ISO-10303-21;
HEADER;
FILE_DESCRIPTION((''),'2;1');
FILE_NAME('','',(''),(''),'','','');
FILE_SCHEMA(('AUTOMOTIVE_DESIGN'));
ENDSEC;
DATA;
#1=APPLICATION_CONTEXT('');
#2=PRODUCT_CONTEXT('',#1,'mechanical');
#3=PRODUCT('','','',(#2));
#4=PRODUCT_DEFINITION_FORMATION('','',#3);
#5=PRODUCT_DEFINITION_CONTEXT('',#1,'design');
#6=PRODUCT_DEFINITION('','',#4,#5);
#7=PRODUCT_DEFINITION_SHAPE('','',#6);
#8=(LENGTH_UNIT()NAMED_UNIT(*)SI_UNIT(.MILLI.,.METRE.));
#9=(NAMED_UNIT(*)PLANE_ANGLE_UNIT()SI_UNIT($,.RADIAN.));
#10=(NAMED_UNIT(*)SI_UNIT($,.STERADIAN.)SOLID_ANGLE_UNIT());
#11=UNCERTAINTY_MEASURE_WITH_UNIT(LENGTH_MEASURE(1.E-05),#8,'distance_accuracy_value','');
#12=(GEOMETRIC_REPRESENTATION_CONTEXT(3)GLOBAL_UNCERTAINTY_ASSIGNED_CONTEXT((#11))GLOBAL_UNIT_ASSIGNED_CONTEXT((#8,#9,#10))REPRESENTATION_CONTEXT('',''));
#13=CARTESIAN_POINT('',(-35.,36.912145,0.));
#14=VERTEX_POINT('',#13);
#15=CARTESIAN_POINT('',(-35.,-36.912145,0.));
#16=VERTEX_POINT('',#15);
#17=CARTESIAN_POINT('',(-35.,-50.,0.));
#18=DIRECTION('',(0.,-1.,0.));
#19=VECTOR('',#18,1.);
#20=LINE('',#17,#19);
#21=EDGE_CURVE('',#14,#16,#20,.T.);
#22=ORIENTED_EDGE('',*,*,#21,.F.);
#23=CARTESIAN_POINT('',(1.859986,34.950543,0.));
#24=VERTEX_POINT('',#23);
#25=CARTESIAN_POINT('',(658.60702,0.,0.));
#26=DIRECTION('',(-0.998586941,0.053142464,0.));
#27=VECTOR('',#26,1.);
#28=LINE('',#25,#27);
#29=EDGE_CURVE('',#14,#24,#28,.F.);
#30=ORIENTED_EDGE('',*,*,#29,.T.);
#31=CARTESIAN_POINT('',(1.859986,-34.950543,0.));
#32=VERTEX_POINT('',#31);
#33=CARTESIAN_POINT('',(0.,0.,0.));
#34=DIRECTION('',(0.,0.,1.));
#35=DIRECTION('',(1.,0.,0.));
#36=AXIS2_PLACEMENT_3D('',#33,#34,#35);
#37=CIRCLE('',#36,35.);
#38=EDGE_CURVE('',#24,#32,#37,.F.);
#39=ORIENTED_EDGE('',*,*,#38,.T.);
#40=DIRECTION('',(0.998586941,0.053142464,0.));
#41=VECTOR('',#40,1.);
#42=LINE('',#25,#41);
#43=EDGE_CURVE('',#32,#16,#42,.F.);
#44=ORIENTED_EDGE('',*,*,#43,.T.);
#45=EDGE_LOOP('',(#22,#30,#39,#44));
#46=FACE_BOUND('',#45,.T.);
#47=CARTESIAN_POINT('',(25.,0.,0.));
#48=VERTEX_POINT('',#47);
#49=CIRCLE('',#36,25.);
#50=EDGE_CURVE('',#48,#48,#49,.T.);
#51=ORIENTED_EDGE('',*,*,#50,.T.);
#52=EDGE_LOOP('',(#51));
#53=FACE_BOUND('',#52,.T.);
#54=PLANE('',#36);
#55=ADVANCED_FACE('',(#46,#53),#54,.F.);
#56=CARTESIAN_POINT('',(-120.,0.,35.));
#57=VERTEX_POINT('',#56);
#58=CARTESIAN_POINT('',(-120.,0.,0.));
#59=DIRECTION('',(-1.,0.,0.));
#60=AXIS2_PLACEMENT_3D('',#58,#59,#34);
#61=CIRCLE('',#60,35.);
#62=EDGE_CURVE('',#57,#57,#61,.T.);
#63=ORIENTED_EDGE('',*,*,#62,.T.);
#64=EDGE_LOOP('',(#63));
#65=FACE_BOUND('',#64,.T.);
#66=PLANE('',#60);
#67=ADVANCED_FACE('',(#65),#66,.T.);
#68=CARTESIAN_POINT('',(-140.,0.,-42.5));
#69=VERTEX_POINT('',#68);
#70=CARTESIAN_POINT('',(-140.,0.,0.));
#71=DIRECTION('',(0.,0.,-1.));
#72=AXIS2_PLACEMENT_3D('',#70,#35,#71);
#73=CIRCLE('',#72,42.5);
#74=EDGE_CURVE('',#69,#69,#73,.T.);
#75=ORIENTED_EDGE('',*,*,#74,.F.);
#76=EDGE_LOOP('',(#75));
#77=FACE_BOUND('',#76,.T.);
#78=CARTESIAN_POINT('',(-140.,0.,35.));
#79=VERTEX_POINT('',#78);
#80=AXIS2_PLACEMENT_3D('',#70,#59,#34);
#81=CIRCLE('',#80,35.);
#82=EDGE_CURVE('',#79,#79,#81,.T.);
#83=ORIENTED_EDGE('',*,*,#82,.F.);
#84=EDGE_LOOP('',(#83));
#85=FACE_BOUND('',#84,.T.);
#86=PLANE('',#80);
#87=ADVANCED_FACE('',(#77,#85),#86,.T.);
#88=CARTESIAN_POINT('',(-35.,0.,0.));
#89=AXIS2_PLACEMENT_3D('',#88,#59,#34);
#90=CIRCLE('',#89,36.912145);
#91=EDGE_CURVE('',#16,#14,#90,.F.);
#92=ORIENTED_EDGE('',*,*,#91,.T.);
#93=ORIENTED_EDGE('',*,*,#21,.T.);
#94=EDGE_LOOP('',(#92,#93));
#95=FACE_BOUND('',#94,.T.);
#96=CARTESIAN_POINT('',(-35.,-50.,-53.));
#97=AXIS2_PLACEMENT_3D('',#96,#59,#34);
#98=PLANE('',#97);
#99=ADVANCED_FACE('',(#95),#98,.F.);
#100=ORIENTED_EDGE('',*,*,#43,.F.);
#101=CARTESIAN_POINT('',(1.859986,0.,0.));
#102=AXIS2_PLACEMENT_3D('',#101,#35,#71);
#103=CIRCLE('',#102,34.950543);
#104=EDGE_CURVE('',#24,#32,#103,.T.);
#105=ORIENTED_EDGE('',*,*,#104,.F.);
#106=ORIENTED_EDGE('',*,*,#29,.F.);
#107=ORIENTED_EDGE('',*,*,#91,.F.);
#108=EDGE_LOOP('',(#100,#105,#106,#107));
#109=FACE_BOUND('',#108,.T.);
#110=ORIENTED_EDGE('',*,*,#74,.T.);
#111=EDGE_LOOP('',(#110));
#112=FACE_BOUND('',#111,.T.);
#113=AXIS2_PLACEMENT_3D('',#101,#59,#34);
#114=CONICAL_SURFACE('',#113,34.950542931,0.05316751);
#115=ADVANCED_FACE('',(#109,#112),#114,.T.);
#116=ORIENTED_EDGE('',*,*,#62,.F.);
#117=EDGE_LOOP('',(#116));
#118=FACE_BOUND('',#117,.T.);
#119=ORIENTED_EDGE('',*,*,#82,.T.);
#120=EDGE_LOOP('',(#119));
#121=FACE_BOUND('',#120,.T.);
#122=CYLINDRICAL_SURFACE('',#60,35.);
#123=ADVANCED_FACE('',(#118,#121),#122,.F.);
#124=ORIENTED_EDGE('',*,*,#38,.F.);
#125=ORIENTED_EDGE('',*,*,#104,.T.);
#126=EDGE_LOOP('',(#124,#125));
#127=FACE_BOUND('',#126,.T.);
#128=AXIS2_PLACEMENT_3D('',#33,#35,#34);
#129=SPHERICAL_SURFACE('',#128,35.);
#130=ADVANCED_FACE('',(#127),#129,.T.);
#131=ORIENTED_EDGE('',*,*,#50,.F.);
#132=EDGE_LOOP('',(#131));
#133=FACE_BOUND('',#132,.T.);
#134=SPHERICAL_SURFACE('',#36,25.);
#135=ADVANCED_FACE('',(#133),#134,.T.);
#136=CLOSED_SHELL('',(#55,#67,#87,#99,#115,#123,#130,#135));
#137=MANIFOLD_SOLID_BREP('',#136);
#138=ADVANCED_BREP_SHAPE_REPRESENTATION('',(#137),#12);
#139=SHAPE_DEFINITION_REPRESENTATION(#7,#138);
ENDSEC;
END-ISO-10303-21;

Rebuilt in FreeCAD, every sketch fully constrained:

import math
import FreeCAD as App
import Part
import Sketcher
from FreeCAD import Vector
Q = App.Units.Quantity


def add_polygon(sketch, points):
    """Adds a closed chain of lines whose ends are joined by coincident constraints."""
    first, n = sketch.GeometryCount, len(points)
    for a, b in zip(points, points[1:] + points[:1]):
        sketch.addGeometry(Part.LineSegment(App.Vector(*a, 0), App.Vector(*b, 0)), False)
    for i in range(n):
        sketch.addConstraint(Sketcher.Constraint("Coincident", first + i, 2, first + (i + 1) % n, 1))

doc = App.newDocument("Part")
body = doc.addObject("PartDesign::Body", "Body")

sketch1 = body.newObject("Sketcher::SketchObject", "Sketch")
sketch1.AttachmentSupport = (doc.getObject("XZ_Plane"), [""])
sketch1.MapMode = "FlatFace"
sketch1.addGeometry(Part.LineSegment(Vector(-140, 0, 0), Vector(35, 0, 0)), False)
sketch1.addGeometry(Part.ArcOfCircle(Part.Circle(Vector(0, 0, 0), Vector(0, 0, 1), 35), math.radians(-87), math.radians(0)), False)
sketch1.addGeometry(Part.LineSegment(Vector(2, -35, 0), Vector(-140, -42, 0)), False)
sketch1.addGeometry(Part.LineSegment(Vector(-140, -42, 0), Vector(-140, 0, 0)), False)
sketch1.addConstraint(Sketcher.Constraint("Coincident", 0, 2, 1, 2))
sketch1.addConstraint(Sketcher.Constraint("Tangent", 1, 1, 2, 1))
sketch1.addConstraint(Sketcher.Constraint("Coincident", 2, 2, 3, 1))
sketch1.addConstraint(Sketcher.Constraint("Coincident", 3, 2, 0, 1))
sketch1.addConstraint(Sketcher.Constraint("Horizontal", 0))
sketch1.addConstraint(Sketcher.Constraint("Vertical", 3))
sketch1.addConstraint(Sketcher.Constraint("Coincident", 1, 3, -1, 1))
sketch1.addConstraint(Sketcher.Constraint("PointOnObject", 0, 2, -1))
sketch1.addConstraint(Sketcher.Constraint("Radius", 1, Q("35 mm")))
sketch1.addConstraint(Sketcher.Constraint("DistanceX", 0, 1, 0, 2, Q("175 mm")))
sketch1.addConstraint(Sketcher.Constraint("DistanceY", 3, 1, 3, 2, Q("42.5 mm")))
revolution = body.newObject("PartDesign::Revolution", "Revolution")
revolution.Profile = sketch1
revolution.ReferenceAxis = (sketch1, ["H_Axis"])
revolution.Angle = 360

sketch2 = body.newObject("Sketcher::SketchObject", "Sketch001")
sketch2.AttachmentSupport = (doc.getObject("YZ_Plane"), [""])
sketch2.MapMode = "FlatFace"
sketch2.AttachmentOffset = App.Placement(Vector(0, 0, -140), App.Rotation())
sketch2.addGeometry(Part.Circle(Vector(0, 0, 0), Vector(0, 0, 1), 35), False)
sketch2.addConstraint(Sketcher.Constraint("Coincident", 0, 3, -1, 1))
sketch2.addConstraint(Sketcher.Constraint("Diameter", 0, Q("70 mm")))
pocket1 = body.newObject("PartDesign::Pocket", "Pocket")
pocket1.Profile = sketch2
pocket1.Length = 20
pocket1.Reversed = True

sketch3 = body.newObject("Sketcher::SketchObject", "Sketch002")
sketch3.AttachmentSupport = (doc.getObject("XY_Plane"), [""])
sketch3.MapMode = "FlatFace"
add_polygon(sketch3, [(-35, 50), (-35, -50), (35, -50), (35, 50)])
sketch3.addConstraint(Sketcher.Constraint("Vertical", 0))
sketch3.addConstraint(Sketcher.Constraint("Horizontal", 1))
sketch3.addConstraint(Sketcher.Constraint("Vertical", 2))
sketch3.addConstraint(Sketcher.Constraint("Horizontal", 3))
sketch3.addConstraint(Sketcher.Constraint("Symmetric", 0, 2, 2, 2, -1, 1))
sketch3.addConstraint(Sketcher.Constraint("DistanceX", 1, 1, 1, 2, Q("70 mm")))
sketch3.addConstraint(Sketcher.Constraint("DistanceY", 0, 2, 0, 1, Q("100 mm")))
pocket2 = body.newObject("PartDesign::Pocket", "Pocket001")
pocket2.Profile = sketch3
pocket2.Length = 53

sketch4 = body.newObject("Sketcher::SketchObject", "Sketch003")
sketch4.AttachmentSupport = (doc.getObject("XY_Plane"), [""])
sketch4.MapMode = "FlatFace"
sketch4.addGeometry(Part.LineSegment(Vector(-25, 0, 0), Vector(25, 0, 0)), False)
sketch4.addGeometry(Part.ArcOfCircle(Part.Circle(Vector(0, 0, 0), Vector(0, 0, 1), 25), math.radians(0), math.radians(180)), False)
sketch4.addConstraint(Sketcher.Constraint("Coincident", 0, 1, 1, 2))
sketch4.addConstraint(Sketcher.Constraint("Coincident", 1, 1, 0, 2))
sketch4.addConstraint(Sketcher.Constraint("Horizontal", 0))
sketch4.addConstraint(Sketcher.Constraint("Coincident", 1, 3, -1, 1))
sketch4.addConstraint(Sketcher.Constraint("PointOnObject", 0, 1, -1))
sketch4.addConstraint(Sketcher.Constraint("Radius", 1, Q("25 mm")))
revolution2 = body.newObject("PartDesign::Revolution", "Revolution001")
revolution2.Profile = sketch4
revolution2.ReferenceAxis = (sketch4, ["H_Axis"])
revolution2.Angle = 360

doc.recompute()
